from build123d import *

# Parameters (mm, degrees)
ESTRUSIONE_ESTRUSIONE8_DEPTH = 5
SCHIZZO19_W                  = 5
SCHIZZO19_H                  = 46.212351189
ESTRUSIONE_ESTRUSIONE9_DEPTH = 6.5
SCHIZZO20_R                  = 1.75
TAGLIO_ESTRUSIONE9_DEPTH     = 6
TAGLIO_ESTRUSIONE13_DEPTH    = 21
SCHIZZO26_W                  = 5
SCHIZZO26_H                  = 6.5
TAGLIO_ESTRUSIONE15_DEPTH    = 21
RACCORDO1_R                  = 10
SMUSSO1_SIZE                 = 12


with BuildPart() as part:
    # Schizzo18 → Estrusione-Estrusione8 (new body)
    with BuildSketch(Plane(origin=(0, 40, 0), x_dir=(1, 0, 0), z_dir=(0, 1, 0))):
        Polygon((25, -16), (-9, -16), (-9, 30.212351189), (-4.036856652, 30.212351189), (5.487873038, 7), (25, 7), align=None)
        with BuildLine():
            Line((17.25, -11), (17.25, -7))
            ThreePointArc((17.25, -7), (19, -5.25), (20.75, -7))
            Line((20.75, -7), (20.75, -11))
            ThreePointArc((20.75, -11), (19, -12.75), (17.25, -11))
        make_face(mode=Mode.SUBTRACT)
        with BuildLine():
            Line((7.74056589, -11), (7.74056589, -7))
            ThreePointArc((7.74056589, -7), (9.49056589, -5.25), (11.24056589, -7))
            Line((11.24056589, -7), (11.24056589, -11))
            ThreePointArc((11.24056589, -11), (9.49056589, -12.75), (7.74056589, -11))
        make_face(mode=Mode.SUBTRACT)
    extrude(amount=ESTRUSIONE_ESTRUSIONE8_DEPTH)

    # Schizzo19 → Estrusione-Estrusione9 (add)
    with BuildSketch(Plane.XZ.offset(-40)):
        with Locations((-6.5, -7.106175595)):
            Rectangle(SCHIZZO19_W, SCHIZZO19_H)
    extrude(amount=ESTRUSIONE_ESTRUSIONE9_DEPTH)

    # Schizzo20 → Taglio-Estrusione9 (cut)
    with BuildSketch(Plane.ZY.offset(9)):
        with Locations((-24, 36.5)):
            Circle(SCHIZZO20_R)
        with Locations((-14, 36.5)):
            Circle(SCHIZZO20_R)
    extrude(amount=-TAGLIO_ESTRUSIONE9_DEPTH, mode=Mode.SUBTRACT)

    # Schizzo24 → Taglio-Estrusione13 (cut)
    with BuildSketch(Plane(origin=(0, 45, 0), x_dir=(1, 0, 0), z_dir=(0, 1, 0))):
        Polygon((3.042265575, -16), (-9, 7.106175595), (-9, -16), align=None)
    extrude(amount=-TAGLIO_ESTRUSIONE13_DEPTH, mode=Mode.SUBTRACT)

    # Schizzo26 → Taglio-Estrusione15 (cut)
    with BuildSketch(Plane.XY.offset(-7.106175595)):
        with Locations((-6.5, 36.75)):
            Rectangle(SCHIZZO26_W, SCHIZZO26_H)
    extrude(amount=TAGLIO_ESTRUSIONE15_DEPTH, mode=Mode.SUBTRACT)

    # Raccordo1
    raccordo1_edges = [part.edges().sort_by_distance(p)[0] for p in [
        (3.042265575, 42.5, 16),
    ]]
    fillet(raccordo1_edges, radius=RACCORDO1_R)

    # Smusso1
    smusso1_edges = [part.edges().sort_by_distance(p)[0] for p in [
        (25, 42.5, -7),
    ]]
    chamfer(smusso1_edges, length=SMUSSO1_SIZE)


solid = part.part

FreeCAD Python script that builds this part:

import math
import FreeCAD as App
import Part
import Sketcher
Q = App.Units.Quantity


def edges_at(feature, points):
    """Names of the edges that pass closest to the given points."""
    edges = feature.Shape.Edges
    near = lambda p: min(range(len(edges)), key=lambda i: edges[i].distToShape(Part.Vertex(*p))[0])
    return sorted({f"Edge{near(p) + 1}" for p in points})


def add_polygon(sketch, points):
    """Adds a closed chain of lines whose ends are joined by coincident constraints."""
    first, n = sketch.GeometryCount, len(points)
    for a, b in zip(points, points[1:] + points[:1]):
        sketch.addGeometry(Part.LineSegment(App.Vector(*a, 0), App.Vector(*b, 0)), False)
    for i in range(n):
        sketch.addConstraint(Sketcher.Constraint("Coincident", first + i, 2, first + (i + 1) % n, 1))

doc = App.newDocument("Part")
body = doc.addObject("PartDesign::Body", "Body")

# Sketch on XZ plane
sketch1 = body.newObject("Sketcher::SketchObject", "Sketch")
sketch1.AttachmentSupport = (doc.getObject("XZ_Plane"), [""])
sketch1.MapMode = "FlatFace"
sketch1.AttachmentOffset = App.Placement(App.Vector(0, 0, -40), App.Rotation())
add_polygon(sketch1, [(-9, 16), (25, 16), (25, -7), (5.487873, -7), (-4.036857, -30.212351), (-9, -30.212351)])  # lines 0-5
sketch1.addGeometry(Part.LineSegment(App.Vector(17.25, 11, 0), App.Vector(17.25, 7, 0)), False)  # 6
sketch1.addGeometry(Part.ArcOfCircle(Part.Circle(App.Vector(19, 7, 0), App.Vector(0, 0, 1), 1.75), math.radians(180), math.radians(360)), False)  # 7
sketch1.addGeometry(Part.LineSegment(App.Vector(20.75, 7, 0), App.Vector(20.75, 11, 0)), False)  # 8
sketch1.addGeometry(Part.ArcOfCircle(Part.Circle(App.Vector(19, 11, 0), App.Vector(0, 0, 1), 1.75), math.radians(0), math.radians(180)), False)  # 9
sketch1.addGeometry(Part.LineSegment(App.Vector(7.740566, 11, 0), App.Vector(7.740566, 7, 0)), False)  # 10
sketch1.addGeometry(Part.ArcOfCircle(Part.Circle(App.Vector(9.490566, 7, 0), App.Vector(0, 0, 1), 1.75), math.radians(180), math.radians(360)), False)  # 11
sketch1.addGeometry(Part.LineSegment(App.Vector(11.240566, 7, 0), App.Vector(11.240566, 11, 0)), False)  # 12
sketch1.addGeometry(Part.ArcOfCircle(Part.Circle(App.Vector(9.490566, 11, 0), App.Vector(0, 0, 1), 1.75), math.radians(0), math.radians(180)), False)  # 13
sketch1.addConstraint(Sketcher.Constraint("Tangent", 6, 2, 7, 1))
sketch1.addConstraint(Sketcher.Constraint("Tangent", 7, 2, 8, 1))
sketch1.addConstraint(Sketcher.Constraint("Tangent", 8, 2, 9, 1))
sketch1.addConstraint(Sketcher.Constraint("Tangent", 9, 2, 6, 1))
sketch1.addConstraint(Sketcher.Constraint("Tangent", 10, 2, 11, 1))
sketch1.addConstraint(Sketcher.Constraint("Tangent", 11, 2, 12, 1))
sketch1.addConstraint(Sketcher.Constraint("Tangent", 12, 2, 13, 1))
sketch1.addConstraint(Sketcher.Constraint("Tangent", 13, 2, 10, 1))
sketch1.addConstraint(Sketcher.Constraint("Horizontal", 0))
sketch1.addConstraint(Sketcher.Constraint("Vertical", 1))
sketch1.addConstraint(Sketcher.Constraint("Horizontal", 2))
sketch1.addConstraint(Sketcher.Constraint("Horizontal", 4))
sketch1.addConstraint(Sketcher.Constraint("Vertical", 5))
sketch1.addConstraint(Sketcher.Constraint("Vertical", 6))
sketch1.addConstraint(Sketcher.Constraint("Vertical", 8))
sketch1.addConstraint(Sketcher.Constraint("Vertical", 10))
sketch1.addConstraint(Sketcher.Constraint("Vertical", 12))
sketch1.addConstraint(Sketcher.Constraint("Equal", 9, 11))
sketch1.addConstraint(Sketcher.Constraint("Horizontal", 7, 3, 11, 3))
sketch1.addConstraint(Sketcher.Constraint("Horizontal", 9, 3, 13, 3))
sketch1.addConstraint(Sketcher.Constraint("DistanceX", 0, 1, 0, 2, Q("34 mm")))
sketch1.addConstraint(Sketcher.Constraint("DistanceY", 1, 2, 1, 1, Q("23 mm")))
sketch1.addConstraint(Sketcher.Constraint("DistanceY", 6, 2, 6, 1, Q("4 mm")))
sketch1.addConstraint(Sketcher.Constraint("Radius", 7, Q("1.75 mm")))
sketch1.addConstraint(Sketcher.Constraint("DistanceX", -1, 1, 7, 3, Q("19 mm")))
sketch1.addConstraint(Sketcher.Constraint("DistanceY", -1, 1, 7, 3, Q("7 mm")))
sketch1.addConstraint(Sketcher.Constraint("DistanceX", -1, 1, 0, 2, Q("25 mm")))
sketch1.addConstraint(Sketcher.Constraint("DistanceY", -1, 1, 0, 2, Q("16 mm")))
sketch1.addConstraint(Sketcher.Constraint("DistanceY", 5, 1, 5, 2, Q("46.212351 mm")))
sketch1.addConstraint(Sketcher.Constraint("Distance", 3, Q("25.090511 mm")))
sketch1.addConstraint(Sketcher.Constraint("DistanceX", 2, 2, 2, 1, Q("19.512127 mm")))
sketch1.addConstraint(Sketcher.Constraint("DistanceX", -1, 1, 11, 3, Q("9.490566 mm")))
pad1 = body.newObject("PartDesign::Pad", "Pad")
pad1.Profile = sketch1
pad1.Length = 5
pad1.Reversed = True

# Sketch on XZ plane
sketch2 = body.newObject("Sketcher::SketchObject", "Sketch001")
sketch2.AttachmentSupport = (doc.getObject("XZ_Plane"), [""])
sketch2.MapMode = "FlatFace"
sketch2.AttachmentOffset = App.Placement(App.Vector(0, 0, -40), App.Rotation())
add_polygon(sketch2, [(-9, 16), (-9, -30.212351), (-4, -30.212351), (-4, 16)])  # lines 0-3
sketch2.addConstraint(Sketcher.Constraint("Vertical", 0))
sketch2.addConstraint(Sketcher.Constraint("Horizontal", 1))
sketch2.addConstraint(Sketcher.Constraint("Vertical", 2))
sketch2.addConstraint(Sketcher.Constraint("Horizontal", 3))
sketch2.addConstraint(Sketcher.Constraint("DistanceX", 1, 1, 1, 2, Q("5 mm")))
sketch2.addConstraint(Sketcher.Constraint("DistanceX", 0, 2, -1, 1, Q("9 mm")))
sketch2.addConstraint(Sketcher.Constraint("DistanceY", -1, 1, 2, 2, Q("16 mm")))
sketch2.addConstraint(Sketcher.Constraint("DistanceY", 0, 2, 0, 1, Q("46.212351 mm")))
pad2 = body.newObject("PartDesign::Pad", "Pad001")
pad2.Profile = sketch2
pad2.Length = 6.5

# Sketch on YZ plane
sketch3 = body.newObject("Sketcher::SketchObject", "Sketch002")
sketch3.AttachmentSupport = (doc.getObject("YZ_Plane"), [""])
sketch3.MapMode = "FlatFace"
sketch3.AttachmentOffset = App.Placement(App.Vector(0, 0, -9), App.Rotation())
sketch3.addGeometry(Part.Circle(App.Vector(36.5, -24, 0), App.Vector(0, 0, 1), 1.75), False)
sketch3.addGeometry(Part.Circle(App.Vector(36.5, -14, 0), App.Vector(0, 0, 1), 1.75), False)
sketch3.addConstraint(Sketcher.Constraint("Equal", 0, 1))
sketch3.addConstraint(Sketcher.Constraint("Vertical", 0, 3, 1, 3))
sketch3.addConstraint(Sketcher.Constraint("Diameter", 0, Q("3.5 mm")))
sketch3.addConstraint(Sketcher.Constraint("DistanceY", 0, 3, -1, 1, Q("24 mm")))
sketch3.addConstraint(Sketcher.Constraint("DistanceY", 1, 3, -1, 1, Q("14 mm")))
sketch3.addConstraint(Sketcher.Constraint("DistanceX", -1, 1, 0, 3, Q("36.5 mm")))
pocket1 = body.newObject("PartDesign::Pocket", "Pocket")
pocket1.Profile = sketch3
pocket1.Length = 6
pocket1.Reversed = True

# Sketch on XZ plane
sketch4 = body.newObject("Sketcher::SketchObject", "Sketch003")
sketch4.AttachmentSupport = (doc.getObject("XZ_Plane"), [""])
sketch4.MapMode = "FlatFace"
sketch4.AttachmentOffset = App.Placement(App.Vector(0, 0, -45), App.Rotation())
add_polygon(sketch4, [(3.042266, 16), (-9, -7.106176), (-9, 16)])  # lines 0-2
sketch4.addConstraint(Sketcher.Constraint("Vertical", 1))
sketch4.addConstraint(Sketcher.Constraint("Horizontal", 2))
sketch4.addConstraint(Sketcher.Constraint("DistanceX", 0, 2, -1, 1, Q("9 mm")))
sketch4.addConstraint(Sketcher.Constraint("DistanceY", -1, 1, 1, 2, Q("16 mm")))
sketch4.addConstraint(Sketcher.Constraint("Distance", 0, Q("26.05593 mm")))
sketch4.addConstraint(Sketcher.Constraint("DistanceX", 2, 1, 2, 2, Q("12.042266 mm")))
pocket2 = body.newObject("PartDesign::Pocket", "Pocket001")
pocket2.Profile = sketch4
pocket2.Length = 21
pocket2.Reversed = True

# Sketch on XY plane
sketch5 = body.newObject("Sketcher::SketchObject", "Sketch004")
sketch5.AttachmentSupport = (doc.getObject("XY_Plane"), [""])
sketch5.MapMode = "FlatFace"
sketch5.AttachmentOffset = App.Placement(App.Vector(0, 0, -7.106176), App.Rotation())
add_polygon(sketch5, [(-9, 40), (-9, 33.5), (-4, 33.5), (-4, 40)])  # lines 0-3
sketch5.addConstraint(Sketcher.Constraint("Vertical", 0))
sketch5.addConstraint(Sketcher.Constraint("Horizontal", 1))
sketch5.addConstraint(Sketcher.Constraint("Vertical", 2))
sketch5.addConstraint(Sketcher.Constraint("Horizontal", 3))
sketch5.addConstraint(Sketcher.Constraint("DistanceX", 1, 1, 1, 2, Q("5 mm")))
sketch5.addConstraint(Sketcher.Constraint("DistanceY", 0, 2, 0, 1, Q("6.5 mm")))
sketch5.addConstraint(Sketcher.Constraint("DistanceX", 0, 2, -1, 1, Q("9 mm")))
sketch5.addConstraint(Sketcher.Constraint("DistanceY", -1, 1, 2, 2, Q("40 mm")))
pocket3 = body.newObject("PartDesign::Pocket", "Pocket002")
pocket3.Profile = sketch5
pocket3.Length = 21
pocket3.Reversed = True
doc.recompute()

fillet = body.newObject("PartDesign::Fillet", "Fillet")
fillet.Base = (pocket3, edges_at(pocket3, [(3.042, 42.5, 16)]))
fillet.Radius = 10
doc.recompute()

chamfer = body.newObject("PartDesign::Chamfer", "Chamfer")
chamfer.Base = (fillet, edges_at(fillet, [(25, 42.5, -7)]))
chamfer.Size = 12

doc.recompute()
